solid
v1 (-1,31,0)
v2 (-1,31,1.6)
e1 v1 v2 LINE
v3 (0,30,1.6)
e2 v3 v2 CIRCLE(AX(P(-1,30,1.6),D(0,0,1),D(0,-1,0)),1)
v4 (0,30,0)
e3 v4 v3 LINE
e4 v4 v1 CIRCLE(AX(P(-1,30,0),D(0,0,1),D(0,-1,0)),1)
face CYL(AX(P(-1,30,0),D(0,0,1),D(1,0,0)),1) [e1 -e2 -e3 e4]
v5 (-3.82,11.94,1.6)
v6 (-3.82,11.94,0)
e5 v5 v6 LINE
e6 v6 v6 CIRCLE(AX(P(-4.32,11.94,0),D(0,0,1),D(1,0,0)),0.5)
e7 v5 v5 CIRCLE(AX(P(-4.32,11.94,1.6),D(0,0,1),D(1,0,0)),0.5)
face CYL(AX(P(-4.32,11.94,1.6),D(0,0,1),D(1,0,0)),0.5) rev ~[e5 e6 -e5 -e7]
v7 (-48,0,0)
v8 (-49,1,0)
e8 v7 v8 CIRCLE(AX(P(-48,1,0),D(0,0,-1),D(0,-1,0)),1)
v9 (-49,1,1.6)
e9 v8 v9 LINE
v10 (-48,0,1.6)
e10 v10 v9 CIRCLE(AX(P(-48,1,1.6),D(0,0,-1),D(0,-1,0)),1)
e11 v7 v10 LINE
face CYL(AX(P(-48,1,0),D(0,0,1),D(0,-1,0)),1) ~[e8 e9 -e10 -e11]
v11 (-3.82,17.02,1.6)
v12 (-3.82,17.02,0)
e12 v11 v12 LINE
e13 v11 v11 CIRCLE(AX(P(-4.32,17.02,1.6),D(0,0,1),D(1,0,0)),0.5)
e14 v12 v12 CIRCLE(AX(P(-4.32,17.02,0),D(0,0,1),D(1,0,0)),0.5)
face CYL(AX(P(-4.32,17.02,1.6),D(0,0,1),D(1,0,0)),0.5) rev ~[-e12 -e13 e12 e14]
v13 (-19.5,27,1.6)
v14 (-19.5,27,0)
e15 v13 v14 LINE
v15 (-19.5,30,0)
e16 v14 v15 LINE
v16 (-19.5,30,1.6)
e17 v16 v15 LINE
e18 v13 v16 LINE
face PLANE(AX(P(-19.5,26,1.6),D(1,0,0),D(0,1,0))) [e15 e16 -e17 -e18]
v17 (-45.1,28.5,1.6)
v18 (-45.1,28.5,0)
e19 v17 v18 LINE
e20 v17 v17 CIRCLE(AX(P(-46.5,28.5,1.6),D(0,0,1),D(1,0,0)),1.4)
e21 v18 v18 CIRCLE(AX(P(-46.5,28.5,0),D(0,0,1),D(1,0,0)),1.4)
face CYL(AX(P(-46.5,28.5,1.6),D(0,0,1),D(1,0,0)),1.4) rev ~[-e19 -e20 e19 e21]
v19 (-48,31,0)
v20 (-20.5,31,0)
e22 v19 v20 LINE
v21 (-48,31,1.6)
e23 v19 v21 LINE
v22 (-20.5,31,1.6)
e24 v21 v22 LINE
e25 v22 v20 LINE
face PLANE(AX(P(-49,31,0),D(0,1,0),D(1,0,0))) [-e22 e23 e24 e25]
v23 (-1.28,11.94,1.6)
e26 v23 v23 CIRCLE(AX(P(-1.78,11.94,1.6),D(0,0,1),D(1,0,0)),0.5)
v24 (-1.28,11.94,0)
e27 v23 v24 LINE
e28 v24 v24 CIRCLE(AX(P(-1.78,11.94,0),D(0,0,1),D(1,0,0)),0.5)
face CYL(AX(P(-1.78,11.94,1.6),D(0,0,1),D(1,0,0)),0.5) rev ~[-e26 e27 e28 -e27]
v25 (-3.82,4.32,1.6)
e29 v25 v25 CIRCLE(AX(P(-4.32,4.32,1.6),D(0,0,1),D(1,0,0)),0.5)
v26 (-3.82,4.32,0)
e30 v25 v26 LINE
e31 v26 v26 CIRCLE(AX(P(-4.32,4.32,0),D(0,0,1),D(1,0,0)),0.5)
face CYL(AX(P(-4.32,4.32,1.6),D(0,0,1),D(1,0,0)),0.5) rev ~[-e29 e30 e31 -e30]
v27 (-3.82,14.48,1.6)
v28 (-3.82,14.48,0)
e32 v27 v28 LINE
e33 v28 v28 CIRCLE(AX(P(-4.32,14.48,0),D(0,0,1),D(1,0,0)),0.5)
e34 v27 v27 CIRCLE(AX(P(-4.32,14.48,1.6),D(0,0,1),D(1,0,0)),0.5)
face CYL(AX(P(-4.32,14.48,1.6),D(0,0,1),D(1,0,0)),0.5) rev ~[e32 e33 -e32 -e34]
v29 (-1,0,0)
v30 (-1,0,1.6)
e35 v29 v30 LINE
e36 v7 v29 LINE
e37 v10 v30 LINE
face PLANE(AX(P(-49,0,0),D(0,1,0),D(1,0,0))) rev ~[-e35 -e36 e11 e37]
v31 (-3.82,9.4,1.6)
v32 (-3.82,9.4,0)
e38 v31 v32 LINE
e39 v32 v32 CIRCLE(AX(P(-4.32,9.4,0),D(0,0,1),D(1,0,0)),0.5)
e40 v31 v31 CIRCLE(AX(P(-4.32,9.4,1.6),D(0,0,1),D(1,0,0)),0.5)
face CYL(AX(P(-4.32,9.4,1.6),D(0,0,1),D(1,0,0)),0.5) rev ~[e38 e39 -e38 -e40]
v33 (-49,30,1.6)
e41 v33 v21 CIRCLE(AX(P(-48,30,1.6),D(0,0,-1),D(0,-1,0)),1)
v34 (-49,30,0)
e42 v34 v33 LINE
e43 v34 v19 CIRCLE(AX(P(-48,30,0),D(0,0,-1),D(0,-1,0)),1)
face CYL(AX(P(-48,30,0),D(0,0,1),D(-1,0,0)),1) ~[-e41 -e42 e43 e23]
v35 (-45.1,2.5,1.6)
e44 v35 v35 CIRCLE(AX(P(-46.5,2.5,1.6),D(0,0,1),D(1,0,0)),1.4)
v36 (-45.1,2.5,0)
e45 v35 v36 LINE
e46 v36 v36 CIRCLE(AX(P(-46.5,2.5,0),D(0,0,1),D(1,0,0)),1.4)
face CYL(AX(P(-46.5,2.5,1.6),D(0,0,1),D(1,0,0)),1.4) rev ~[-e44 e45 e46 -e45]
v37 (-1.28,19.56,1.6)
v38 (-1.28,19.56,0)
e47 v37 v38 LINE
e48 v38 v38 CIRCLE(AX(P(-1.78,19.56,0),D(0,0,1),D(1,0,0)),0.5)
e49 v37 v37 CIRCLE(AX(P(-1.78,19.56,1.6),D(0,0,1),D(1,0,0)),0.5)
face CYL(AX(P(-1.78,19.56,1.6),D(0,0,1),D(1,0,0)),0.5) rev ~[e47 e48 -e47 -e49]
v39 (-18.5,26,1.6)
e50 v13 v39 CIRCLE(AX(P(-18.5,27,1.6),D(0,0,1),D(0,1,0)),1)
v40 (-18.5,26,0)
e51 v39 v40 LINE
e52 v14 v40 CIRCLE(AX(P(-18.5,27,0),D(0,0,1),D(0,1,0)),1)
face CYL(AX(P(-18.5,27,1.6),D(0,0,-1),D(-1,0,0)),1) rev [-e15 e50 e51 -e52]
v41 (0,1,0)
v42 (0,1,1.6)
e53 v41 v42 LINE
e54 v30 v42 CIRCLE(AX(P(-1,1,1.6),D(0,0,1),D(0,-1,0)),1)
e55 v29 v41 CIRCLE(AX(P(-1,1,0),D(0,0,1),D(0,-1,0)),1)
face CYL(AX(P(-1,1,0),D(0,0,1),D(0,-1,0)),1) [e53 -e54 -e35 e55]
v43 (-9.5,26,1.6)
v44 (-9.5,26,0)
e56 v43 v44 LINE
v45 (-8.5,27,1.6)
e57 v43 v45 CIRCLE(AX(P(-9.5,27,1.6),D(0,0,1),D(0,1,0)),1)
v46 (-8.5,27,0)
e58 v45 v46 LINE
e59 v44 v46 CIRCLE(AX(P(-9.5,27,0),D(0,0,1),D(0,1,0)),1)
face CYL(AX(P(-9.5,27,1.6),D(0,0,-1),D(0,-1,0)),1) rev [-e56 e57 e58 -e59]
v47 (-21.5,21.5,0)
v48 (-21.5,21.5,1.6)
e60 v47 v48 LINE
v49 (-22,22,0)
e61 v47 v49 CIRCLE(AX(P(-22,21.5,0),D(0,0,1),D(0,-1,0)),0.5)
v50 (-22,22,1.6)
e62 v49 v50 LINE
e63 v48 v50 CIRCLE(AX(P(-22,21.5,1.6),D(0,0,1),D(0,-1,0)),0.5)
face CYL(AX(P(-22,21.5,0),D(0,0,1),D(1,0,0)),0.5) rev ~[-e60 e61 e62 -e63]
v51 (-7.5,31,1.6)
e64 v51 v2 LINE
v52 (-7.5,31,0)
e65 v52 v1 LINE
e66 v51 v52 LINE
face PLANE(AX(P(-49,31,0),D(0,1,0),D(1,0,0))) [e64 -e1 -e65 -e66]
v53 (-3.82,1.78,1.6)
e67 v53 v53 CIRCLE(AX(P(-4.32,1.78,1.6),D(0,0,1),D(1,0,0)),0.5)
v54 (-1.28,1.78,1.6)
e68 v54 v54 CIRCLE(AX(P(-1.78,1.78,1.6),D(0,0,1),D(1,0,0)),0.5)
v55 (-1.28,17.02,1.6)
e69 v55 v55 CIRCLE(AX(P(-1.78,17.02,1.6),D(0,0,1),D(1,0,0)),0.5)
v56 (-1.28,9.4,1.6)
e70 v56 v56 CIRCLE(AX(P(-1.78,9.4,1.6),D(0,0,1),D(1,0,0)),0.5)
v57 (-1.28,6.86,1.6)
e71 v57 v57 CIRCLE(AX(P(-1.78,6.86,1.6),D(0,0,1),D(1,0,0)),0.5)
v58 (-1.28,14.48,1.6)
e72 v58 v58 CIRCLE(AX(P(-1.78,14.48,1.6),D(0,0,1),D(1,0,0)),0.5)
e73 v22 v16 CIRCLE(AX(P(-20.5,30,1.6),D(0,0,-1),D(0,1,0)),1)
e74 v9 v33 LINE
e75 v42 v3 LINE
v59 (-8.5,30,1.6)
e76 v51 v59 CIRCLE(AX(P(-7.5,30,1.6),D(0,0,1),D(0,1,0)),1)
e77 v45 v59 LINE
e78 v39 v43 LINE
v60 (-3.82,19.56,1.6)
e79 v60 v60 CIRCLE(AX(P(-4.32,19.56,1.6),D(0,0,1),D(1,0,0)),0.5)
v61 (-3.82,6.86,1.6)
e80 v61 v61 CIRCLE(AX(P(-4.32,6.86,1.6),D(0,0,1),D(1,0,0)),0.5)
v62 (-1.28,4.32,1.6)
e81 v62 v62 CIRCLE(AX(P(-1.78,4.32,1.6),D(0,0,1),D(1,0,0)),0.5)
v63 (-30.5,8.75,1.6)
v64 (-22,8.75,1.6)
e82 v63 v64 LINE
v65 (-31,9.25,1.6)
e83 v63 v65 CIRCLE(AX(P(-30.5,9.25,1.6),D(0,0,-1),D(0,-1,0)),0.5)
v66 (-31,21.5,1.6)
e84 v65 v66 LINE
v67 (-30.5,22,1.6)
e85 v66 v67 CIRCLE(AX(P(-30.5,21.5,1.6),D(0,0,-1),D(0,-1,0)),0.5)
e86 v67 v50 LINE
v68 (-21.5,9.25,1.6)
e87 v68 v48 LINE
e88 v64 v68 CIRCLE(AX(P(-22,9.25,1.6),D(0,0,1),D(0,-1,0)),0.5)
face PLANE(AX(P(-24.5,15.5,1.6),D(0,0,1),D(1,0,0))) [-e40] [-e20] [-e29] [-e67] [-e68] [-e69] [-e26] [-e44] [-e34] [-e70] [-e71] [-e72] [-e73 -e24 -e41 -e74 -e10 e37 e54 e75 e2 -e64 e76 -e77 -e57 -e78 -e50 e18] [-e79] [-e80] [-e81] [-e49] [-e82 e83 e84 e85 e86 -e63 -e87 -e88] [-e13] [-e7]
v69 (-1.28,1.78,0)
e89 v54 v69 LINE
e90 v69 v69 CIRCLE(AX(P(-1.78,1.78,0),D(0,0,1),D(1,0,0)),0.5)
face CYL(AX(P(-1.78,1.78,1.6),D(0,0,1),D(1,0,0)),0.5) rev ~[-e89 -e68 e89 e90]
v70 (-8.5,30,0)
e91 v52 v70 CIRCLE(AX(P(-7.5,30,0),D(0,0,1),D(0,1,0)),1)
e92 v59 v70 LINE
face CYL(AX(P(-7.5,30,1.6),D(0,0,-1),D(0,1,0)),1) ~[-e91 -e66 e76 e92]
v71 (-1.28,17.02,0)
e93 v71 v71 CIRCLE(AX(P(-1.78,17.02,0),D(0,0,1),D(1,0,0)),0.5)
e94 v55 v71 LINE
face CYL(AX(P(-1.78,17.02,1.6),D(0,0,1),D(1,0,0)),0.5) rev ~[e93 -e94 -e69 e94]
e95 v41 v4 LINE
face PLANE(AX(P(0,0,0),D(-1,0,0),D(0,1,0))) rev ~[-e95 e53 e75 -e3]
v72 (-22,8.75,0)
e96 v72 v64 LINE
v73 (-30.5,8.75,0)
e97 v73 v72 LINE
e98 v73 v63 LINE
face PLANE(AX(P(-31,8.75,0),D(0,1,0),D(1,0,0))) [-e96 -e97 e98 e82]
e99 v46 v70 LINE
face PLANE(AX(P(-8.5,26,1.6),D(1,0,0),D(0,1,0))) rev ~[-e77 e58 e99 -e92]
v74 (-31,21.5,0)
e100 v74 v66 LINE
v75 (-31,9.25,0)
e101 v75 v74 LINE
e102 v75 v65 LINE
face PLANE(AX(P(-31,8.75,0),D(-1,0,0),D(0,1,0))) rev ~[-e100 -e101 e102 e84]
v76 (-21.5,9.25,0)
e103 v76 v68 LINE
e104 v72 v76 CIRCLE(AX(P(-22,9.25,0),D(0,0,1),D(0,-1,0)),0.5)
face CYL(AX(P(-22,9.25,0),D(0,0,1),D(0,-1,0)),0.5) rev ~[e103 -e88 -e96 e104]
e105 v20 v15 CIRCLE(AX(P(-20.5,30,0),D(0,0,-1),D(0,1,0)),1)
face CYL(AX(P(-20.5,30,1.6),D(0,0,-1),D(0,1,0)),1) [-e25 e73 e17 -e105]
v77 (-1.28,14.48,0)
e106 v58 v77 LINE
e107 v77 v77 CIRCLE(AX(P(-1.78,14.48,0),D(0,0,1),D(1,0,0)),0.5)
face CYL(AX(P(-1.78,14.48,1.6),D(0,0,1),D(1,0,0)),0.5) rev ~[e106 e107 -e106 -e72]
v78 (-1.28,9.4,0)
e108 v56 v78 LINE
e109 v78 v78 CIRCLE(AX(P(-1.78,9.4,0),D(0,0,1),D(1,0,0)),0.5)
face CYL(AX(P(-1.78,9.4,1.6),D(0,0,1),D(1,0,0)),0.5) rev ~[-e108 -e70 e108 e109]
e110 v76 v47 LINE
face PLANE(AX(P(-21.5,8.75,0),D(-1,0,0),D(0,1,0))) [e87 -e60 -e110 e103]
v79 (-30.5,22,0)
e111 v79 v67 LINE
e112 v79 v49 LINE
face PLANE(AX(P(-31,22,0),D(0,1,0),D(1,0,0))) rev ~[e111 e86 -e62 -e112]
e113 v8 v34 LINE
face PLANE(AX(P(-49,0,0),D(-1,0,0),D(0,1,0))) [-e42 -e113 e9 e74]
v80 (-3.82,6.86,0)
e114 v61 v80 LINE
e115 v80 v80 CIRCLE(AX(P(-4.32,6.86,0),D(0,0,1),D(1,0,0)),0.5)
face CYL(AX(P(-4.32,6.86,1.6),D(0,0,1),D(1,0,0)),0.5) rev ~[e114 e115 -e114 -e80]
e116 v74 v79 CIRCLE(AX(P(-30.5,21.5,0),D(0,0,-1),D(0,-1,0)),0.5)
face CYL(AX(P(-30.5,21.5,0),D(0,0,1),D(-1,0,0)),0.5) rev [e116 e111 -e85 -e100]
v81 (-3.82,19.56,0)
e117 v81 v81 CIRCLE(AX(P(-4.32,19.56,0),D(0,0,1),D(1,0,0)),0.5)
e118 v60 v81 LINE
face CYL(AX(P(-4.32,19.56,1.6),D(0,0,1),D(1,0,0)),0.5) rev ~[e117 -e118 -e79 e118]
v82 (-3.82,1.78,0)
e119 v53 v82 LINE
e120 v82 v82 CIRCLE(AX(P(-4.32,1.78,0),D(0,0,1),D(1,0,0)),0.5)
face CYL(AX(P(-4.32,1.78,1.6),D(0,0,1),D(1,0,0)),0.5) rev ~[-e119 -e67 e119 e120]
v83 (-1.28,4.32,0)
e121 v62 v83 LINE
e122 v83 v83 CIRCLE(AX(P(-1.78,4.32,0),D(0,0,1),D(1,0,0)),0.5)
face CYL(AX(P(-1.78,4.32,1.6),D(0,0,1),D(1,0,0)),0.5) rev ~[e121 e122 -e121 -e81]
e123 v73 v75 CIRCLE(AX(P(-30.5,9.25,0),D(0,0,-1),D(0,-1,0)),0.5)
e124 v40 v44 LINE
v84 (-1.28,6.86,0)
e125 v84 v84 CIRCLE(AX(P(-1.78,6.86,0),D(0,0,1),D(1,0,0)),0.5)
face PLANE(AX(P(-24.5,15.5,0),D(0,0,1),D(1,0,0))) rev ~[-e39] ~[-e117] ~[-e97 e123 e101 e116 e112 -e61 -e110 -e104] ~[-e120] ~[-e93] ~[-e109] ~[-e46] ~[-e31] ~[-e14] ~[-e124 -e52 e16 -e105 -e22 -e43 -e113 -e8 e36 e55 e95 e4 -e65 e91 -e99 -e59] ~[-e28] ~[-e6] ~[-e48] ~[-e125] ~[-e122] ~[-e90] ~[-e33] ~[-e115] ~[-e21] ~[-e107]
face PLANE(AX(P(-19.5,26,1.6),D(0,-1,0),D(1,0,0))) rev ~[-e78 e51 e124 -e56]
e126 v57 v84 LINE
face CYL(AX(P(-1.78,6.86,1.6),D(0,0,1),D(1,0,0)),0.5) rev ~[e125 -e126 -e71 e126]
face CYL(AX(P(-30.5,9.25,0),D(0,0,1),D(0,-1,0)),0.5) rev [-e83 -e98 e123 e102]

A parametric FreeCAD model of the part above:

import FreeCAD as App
import Part
import Sketcher

V = App.Vector


def edges_at(feature, points):
    """Names of the edges that pass closest to the given points."""
    edges = feature.Shape.Edges
    near = lambda p: min(range(len(edges)), key=lambda i: edges[i].distToShape(Part.Vertex(*p))[0])
    return sorted({f"Edge{near(p) + 1}" for p in points})


def add_polygon(sketch, points):
    """Adds a closed chain of lines whose ends are joined by coincident constraints."""
    first, n = sketch.GeometryCount, len(points)
    for a, b in zip(points, points[1:] + points[:1]):
        sketch.addGeometry(Part.LineSegment(App.Vector(*a, 0), App.Vector(*b, 0)), False)
    for i in range(n):
        sketch.addConstraint(Sketcher.Constraint("Coincident", first + i, 2, first + (i + 1) % n, 1))

doc = App.newDocument("Part")
body = doc.addObject("PartDesign::Body", "Body")

# Sketch on XY plane
sketch1 = body.newObject("Sketcher::SketchObject", "Sketch")
sketch1.AttachmentSupport = (doc.getObject("XY_Plane"), [""])
sketch1.MapMode = "FlatFace"
add_polygon(sketch1, [(-49, 31), (-49, 0), (0, 0), (0, 31)])  # lines 0-3
add_polygon(sketch1, [(-22, 9), (-31, 9), (-31, 22), (-22, 22)])  # lines 4-7
sketch1.addConstraint([
    Sketcher.Constraint("Vertical", 0),
    Sketcher.Constraint("Horizontal", 1),
    Sketcher.Constraint("Vertical", 2),
    Sketcher.Constraint("Horizontal", 3),
    Sketcher.Constraint("Horizontal", 4),
    Sketcher.Constraint("Vertical", 5),
    Sketcher.Constraint("Horizontal", 6),
    Sketcher.Constraint("Vertical", 7),
    Sketcher.Constraint("Coincident", 1, 2, -1, 1),
    Sketcher.Constraint("DistanceX", 1, 1, 1, 2, 49.0),
    Sketcher.Constraint("DistanceY", 0, 2, 0, 1, 31.0),
    Sketcher.Constraint("DistanceX", 4, 2, 4, 1, 9.5),
    Sketcher.Constraint("DistanceX", 4, 2, -1, 1, 31.0),
    Sketcher.Constraint("DistanceY", -1, 1, 5, 2, 22.0),
    Sketcher.Constraint("DistanceY", 5, 1, 5, 2, 13.25),
])
pad1 = body.newObject("PartDesign::Pad", "Pad")
pad1.Profile = sketch1
pad1.Length = 1.6

# Sketch on XY plane
sketch2 = body.newObject("Sketcher::SketchObject", "Sketch001")
sketch2.AttachmentSupport = (doc.getObject("XY_Plane"), [""])
sketch2.MapMode = "FlatFace"
sketch2.AttachmentOffset = App.Placement(V(0, 0, 1.6), App.Rotation())
sketch2.addGeometry([
    Part.Circle(V(-1.8, 1.8, 0), V(0, 0, 1), 0.5),
    Part.Circle(V(-4.3, 1.8, 0), V(0, 0, 1), 0.5),
], False)
sketch2.addConstraint([
    Sketcher.Constraint("Equal", 0, 1),
    Sketcher.Constraint("Horizontal", 0, 3, 1, 3),
    Sketcher.Constraint("Diameter", 0, 1.0),
    Sketcher.Constraint("DistanceX", 0, 3, -1, 1, 1.78),
    Sketcher.Constraint("DistanceY", -1, 1, 0, 3, 1.78),
    Sketcher.Constraint("DistanceX", 1, 3, -1, 1, 4.32),
])
pocket1 = body.newObject("PartDesign::Pocket", "Pocket")
pocket1.Profile = sketch2
pocket1.Length = 25
doc.recompute()

linearpattern = body.newObject("PartDesign::LinearPattern", "LinearPattern")
linearpattern.Originals = [pocket1]
linearpattern.Direction = (doc.getObject("Y_Axis"), [""])
linearpattern.Mode = "offset"
linearpattern.Offset = 2.54
linearpattern.Occurrences = 8
body.Tip = linearpattern

# Sketch on XY plane
sketch3 = body.newObject("Sketcher::SketchObject", "Sketch002")
sketch3.AttachmentSupport = (doc.getObject("XY_Plane"), [""])
sketch3.MapMode = "FlatFace"
sketch3.AttachmentOffset = App.Placement(V(0, 0, 1.6), App.Rotation())
add_polygon(sketch3, [(-20, 31), (-20, 26), (-8, 26), (-8, 31)])  # lines 0-3
sketch3.addConstraint([
    Sketcher.Constraint("Vertical", 0),
    Sketcher.Constraint("Horizontal", 1),
    Sketcher.Constraint("Vertical", 2),
    Sketcher.Constraint("Horizontal", 3),
    Sketcher.Constraint("DistanceX", 1, 1, 1, 2, 11.0),
    Sketcher.Constraint("DistanceY", 0, 2, 0, 1, 5.0),
    Sketcher.Constraint("DistanceY", -1, 1, 0, 2, 26.0),
    Sketcher.Constraint("DistanceX", 0, 2, -1, 1, 19.5),
])
pocket2 = body.newObject("PartDesign::Pocket", "Pocket001")
pocket2.Profile = sketch3
pocket2.Type = "ThroughAll"

# Sketch on XY plane
sketch4 = body.newObject("Sketcher::SketchObject", "Sketch003")
sketch4.AttachmentSupport = (doc.getObject("XY_Plane"), [""])
sketch4.MapMode = "FlatFace"
sketch4.AttachmentOffset = App.Placement(V(0, 0, 1.6), App.Rotation())
sketch4.addGeometry([
    Part.Circle(V(-46.5, 28.5, 0), V(0, 0, 1), 1.4),
    Part.Circle(V(-46.5, 2.5, 0), V(0, 0, 1), 1.4),
], False)
sketch4.addConstraint([
    Sketcher.Constraint("Equal", 0, 1),
    Sketcher.Constraint("Vertical", 0, 3, 1, 3),
    Sketcher.Constraint("Diameter", 0, 2.8),
    Sketcher.Constraint("DistanceY", 1, 3, 0, 3, 26.0),
    Sketcher.Constraint("DistanceX", 0, 3, -1, 1, 46.5),
    Sketcher.Constraint("DistanceY", -1, 1, 0, 3, 28.5),
])
pocket3 = body.newObject("PartDesign::Pocket", "Pocket002")
pocket3.Profile = sketch4
pocket3.Length = 25
doc.recompute()

fillet = body.newObject("PartDesign::Fillet", "Fillet")
fillet.Base = (pocket3, edges_at(pocket3, [
    (-8.5, 26, 0.8),
    (-19.5, 26, 0.8),
    (-19.5, 31, 0.8),
    (-8.5, 31, 0.8),
    (0, 31, 0.8),
    (0, 0, 0.8),
]))
fillet.Radius = 1
doc.recompute()

fillet2 = body.newObject("PartDesign::Fillet", "Fillet001")
fillet2.Base = (fillet, edges_at(fillet, [
    (-21.5, 22, 0.8),
    (-21.5, 8.75, 0.8),
    (-31, 8.75, 0.8),
    (-31, 22, 0.8),
]))
fillet2.Radius = 0.5
doc.recompute()

fillet3 = body.newObject("PartDesign::Fillet", "Fillet002")
fillet3.Base = (fillet2, edges_at(fillet2, [(-49, 31, 0.8), (-49, 0, 0.8)]))
fillet3.Radius = 1

doc.recompute()
